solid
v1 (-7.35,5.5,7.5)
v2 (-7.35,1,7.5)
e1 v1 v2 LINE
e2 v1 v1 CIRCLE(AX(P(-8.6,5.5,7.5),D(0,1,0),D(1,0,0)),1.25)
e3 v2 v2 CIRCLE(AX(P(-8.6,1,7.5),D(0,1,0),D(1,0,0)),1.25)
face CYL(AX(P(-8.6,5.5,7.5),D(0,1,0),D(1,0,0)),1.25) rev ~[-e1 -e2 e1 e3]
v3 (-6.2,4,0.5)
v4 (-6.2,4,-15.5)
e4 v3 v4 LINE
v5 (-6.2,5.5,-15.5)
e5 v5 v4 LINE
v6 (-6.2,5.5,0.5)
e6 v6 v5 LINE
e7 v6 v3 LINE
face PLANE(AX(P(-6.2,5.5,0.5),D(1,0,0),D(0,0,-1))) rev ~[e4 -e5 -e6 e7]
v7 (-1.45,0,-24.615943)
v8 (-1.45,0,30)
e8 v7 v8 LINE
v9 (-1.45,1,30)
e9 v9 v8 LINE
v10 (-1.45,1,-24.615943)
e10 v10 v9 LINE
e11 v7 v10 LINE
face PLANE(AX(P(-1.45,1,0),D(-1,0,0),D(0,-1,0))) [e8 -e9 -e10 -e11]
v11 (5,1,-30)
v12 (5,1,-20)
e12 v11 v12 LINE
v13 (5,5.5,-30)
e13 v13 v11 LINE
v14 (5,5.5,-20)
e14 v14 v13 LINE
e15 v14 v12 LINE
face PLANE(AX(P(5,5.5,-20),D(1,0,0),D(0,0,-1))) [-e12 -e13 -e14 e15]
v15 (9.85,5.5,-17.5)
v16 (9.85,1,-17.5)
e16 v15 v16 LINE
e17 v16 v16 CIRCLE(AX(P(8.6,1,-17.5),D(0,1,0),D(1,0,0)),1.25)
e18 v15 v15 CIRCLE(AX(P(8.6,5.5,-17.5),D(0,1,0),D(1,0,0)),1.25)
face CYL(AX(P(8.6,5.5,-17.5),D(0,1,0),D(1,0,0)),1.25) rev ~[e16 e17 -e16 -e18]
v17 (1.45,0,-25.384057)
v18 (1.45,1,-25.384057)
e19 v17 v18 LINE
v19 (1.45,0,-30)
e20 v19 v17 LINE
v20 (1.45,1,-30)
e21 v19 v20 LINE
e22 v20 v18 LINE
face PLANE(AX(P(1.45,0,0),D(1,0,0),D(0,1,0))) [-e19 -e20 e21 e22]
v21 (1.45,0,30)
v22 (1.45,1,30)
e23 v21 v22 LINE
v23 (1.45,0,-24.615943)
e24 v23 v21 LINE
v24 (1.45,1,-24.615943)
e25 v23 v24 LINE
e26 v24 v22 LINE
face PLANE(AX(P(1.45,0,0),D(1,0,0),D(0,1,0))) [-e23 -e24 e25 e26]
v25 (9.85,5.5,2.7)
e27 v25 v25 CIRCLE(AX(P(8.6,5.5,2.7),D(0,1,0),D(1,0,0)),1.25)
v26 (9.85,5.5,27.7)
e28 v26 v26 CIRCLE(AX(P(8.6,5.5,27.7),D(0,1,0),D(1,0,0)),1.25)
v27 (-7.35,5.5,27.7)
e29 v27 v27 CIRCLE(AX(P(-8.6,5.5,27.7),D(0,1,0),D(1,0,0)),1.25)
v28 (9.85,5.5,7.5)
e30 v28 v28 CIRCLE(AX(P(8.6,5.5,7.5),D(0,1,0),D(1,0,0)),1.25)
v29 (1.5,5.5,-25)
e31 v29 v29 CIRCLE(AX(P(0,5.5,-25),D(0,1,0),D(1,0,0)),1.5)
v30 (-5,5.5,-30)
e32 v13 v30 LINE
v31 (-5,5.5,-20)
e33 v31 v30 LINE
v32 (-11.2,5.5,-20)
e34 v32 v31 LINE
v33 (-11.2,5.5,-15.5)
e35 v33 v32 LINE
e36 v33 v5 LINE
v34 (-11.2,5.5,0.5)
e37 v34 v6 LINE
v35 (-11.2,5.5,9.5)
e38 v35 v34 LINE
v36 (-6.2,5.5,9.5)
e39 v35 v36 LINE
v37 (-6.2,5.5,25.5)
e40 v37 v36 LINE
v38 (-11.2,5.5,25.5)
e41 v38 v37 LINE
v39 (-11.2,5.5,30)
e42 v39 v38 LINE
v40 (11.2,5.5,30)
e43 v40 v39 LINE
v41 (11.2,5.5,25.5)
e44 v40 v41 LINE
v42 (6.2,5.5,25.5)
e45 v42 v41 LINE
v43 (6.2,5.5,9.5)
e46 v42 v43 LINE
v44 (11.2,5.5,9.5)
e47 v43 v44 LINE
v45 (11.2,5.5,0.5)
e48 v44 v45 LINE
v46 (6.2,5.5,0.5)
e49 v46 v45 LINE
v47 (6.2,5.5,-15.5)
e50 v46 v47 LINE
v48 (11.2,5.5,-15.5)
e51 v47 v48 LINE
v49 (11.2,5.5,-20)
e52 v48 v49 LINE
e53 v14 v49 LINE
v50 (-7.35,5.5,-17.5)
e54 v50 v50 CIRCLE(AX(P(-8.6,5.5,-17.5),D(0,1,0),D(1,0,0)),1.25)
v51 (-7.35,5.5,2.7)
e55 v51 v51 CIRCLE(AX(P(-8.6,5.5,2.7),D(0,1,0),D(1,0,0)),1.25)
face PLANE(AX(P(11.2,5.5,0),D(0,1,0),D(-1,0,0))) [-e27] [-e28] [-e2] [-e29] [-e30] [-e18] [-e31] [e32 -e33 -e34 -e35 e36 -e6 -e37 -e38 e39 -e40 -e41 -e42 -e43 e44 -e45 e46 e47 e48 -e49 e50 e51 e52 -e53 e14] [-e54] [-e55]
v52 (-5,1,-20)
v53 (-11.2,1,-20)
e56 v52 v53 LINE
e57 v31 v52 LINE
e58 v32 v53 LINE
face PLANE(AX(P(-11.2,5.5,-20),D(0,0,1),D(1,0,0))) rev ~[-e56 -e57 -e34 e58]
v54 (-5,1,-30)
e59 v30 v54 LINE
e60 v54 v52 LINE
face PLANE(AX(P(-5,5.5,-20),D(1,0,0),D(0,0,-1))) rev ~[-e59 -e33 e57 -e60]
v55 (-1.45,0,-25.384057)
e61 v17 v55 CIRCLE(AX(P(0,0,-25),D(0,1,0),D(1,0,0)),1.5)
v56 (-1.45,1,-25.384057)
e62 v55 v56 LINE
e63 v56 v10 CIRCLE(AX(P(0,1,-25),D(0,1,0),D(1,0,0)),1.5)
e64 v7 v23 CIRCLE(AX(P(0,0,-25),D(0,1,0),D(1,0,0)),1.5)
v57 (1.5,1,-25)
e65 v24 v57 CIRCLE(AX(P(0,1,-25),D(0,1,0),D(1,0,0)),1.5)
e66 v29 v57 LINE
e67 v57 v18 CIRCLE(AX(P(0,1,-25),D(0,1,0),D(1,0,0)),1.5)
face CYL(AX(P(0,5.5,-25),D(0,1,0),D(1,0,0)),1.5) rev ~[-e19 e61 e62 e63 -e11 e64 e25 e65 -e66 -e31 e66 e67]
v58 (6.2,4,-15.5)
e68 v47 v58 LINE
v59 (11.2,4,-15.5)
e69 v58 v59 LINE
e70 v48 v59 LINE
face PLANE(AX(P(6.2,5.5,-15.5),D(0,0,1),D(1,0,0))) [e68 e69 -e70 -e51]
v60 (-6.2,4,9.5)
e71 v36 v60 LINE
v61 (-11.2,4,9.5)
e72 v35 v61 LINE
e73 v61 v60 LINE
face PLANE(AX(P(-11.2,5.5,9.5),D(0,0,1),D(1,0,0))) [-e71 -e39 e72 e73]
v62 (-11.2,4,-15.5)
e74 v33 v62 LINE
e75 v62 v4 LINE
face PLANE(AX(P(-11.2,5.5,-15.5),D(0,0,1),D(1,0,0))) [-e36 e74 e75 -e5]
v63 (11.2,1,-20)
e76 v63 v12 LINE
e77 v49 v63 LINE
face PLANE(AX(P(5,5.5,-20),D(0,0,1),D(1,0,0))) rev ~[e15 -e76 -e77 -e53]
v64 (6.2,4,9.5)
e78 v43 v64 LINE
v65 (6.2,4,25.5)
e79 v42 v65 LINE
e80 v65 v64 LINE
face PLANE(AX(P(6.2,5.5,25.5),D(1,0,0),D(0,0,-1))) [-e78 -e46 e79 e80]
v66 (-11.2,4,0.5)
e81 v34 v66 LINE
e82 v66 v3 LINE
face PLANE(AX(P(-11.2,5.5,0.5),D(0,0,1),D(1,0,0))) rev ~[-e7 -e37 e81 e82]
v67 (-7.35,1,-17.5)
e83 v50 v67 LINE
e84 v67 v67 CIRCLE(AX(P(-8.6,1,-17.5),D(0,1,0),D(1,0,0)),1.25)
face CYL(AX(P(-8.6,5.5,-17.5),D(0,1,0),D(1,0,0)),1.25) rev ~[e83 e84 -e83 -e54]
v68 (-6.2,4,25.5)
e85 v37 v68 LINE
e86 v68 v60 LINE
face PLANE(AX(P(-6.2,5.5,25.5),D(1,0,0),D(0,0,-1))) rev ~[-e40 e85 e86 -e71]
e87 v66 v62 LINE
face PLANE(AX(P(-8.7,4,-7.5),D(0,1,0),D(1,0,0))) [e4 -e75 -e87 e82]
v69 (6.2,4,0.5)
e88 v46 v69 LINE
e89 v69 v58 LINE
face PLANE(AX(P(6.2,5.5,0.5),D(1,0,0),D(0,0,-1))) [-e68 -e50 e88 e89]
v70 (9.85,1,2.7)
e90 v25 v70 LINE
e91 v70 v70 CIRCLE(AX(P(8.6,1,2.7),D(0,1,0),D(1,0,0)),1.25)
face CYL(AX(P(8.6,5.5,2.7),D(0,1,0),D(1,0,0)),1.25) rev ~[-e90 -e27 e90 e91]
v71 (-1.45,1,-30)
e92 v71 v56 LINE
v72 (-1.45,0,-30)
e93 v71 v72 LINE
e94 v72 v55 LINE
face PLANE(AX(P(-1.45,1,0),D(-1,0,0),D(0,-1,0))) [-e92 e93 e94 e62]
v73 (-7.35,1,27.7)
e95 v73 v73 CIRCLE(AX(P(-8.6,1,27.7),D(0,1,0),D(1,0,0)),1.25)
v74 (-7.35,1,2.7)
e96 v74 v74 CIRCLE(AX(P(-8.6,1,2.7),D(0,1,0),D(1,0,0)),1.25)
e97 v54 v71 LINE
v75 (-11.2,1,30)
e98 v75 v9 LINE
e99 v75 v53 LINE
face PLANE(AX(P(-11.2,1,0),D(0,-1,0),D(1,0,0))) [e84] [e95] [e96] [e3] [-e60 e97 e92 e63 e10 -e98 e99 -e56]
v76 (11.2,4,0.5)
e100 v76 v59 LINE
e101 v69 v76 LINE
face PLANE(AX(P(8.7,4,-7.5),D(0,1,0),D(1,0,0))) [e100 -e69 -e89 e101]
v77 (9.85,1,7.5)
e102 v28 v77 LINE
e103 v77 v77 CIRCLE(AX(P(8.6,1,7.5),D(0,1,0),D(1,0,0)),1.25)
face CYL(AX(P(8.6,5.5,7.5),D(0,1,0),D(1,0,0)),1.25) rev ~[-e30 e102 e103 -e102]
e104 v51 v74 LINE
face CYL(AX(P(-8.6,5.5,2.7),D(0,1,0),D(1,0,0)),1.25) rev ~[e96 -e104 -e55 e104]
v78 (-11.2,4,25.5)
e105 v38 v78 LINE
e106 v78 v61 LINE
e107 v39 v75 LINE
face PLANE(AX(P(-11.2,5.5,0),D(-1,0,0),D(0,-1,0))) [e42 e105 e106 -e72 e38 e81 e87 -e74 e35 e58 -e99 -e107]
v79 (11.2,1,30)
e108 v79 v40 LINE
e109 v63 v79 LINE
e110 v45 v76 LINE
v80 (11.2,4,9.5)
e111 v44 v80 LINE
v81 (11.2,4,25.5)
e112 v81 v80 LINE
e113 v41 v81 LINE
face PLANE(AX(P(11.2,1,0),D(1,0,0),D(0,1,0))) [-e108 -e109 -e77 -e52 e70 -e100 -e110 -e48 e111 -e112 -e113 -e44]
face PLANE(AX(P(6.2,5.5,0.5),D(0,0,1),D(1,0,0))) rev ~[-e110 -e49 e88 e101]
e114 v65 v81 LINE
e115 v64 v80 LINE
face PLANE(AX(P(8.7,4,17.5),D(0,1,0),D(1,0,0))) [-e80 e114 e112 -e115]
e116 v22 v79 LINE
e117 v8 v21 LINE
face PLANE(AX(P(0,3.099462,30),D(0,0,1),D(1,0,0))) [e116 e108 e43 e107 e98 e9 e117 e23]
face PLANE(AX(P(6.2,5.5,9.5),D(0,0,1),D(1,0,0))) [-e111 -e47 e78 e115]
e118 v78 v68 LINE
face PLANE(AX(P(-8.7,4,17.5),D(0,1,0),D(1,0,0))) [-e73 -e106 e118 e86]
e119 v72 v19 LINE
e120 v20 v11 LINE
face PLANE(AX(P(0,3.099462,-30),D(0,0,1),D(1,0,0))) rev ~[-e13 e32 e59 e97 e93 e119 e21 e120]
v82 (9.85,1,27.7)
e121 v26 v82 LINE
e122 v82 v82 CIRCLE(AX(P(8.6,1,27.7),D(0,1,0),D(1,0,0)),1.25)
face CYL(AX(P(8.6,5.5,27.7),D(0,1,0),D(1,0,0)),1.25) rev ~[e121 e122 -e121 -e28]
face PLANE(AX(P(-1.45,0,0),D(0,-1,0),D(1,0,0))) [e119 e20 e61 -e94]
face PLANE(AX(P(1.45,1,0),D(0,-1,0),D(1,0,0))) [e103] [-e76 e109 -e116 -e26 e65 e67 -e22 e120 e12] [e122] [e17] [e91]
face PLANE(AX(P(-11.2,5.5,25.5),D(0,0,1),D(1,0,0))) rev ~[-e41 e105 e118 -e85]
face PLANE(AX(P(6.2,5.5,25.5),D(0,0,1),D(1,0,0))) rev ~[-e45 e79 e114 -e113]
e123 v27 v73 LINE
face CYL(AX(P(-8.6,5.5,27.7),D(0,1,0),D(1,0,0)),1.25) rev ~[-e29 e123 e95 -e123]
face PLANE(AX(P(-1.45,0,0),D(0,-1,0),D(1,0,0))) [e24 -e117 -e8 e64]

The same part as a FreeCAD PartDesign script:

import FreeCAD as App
import Part
import Sketcher
from FreeCAD import Vector


def add_polygon(sketch, points):
    """Adds a closed chain of lines whose ends are joined by coincident constraints."""
    first, n = sketch.GeometryCount, len(points)
    for a, b in zip(points, points[1:] + points[:1]):
        sketch.addGeometry(Part.LineSegment(App.Vector(*a, 0), App.Vector(*b, 0)), False)
    for i in range(n):
        sketch.addConstraint(Sketcher.Constraint("Coincident", first + i, 2, first + (i + 1) % n, 1))

doc = App.newDocument("Part")
body = doc.addObject("PartDesign::Body", "Body")

# Sketch on XY plane
sketch1 = body.newObject("Sketcher::SketchObject", "Sketch")
sketch1.AttachmentSupport = (doc.getObject("XY_Plane"), [""])
sketch1.MapMode = "FlatFace"
add_polygon(sketch1, [(-11.2, 1), (-1.4, 1), (-1.4, 0), (1.4, 0), (1.4, 1), (11.2, 1), (11.2, 5.5), (-11.2, 5.5)])  # lines 0-7
sketch1.addConstraint(Sketcher.Constraint("Horizontal", 0))
sketch1.addConstraint(Sketcher.Constraint("Vertical", 1))
sketch1.addConstraint(Sketcher.Constraint("Horizontal", 2))
sketch1.addConstraint(Sketcher.Constraint("Vertical", 3))
sketch1.addConstraint(Sketcher.Constraint("Horizontal", 4))
sketch1.addConstraint(Sketcher.Constraint("Vertical", 5))
sketch1.addConstraint(Sketcher.Constraint("Horizontal", 6))
sketch1.addConstraint(Sketcher.Constraint("Vertical", 7))
sketch1.addConstraint(Sketcher.Constraint("Symmetric", 1, 2, 2, 2, -1, 1))
sketch1.addConstraint(Sketcher.Constraint("Symmetric", 4, 2, 7, 2, -2))
sketch1.addConstraint(Sketcher.Constraint("DistanceY", 1, 2, 1, 1, 1.0))
sketch1.addConstraint(Sketcher.Constraint("DistanceX", 2, 1, 2, 2, 2.9))
sketch1.addConstraint(Sketcher.Constraint("DistanceX", 6, 2, 6, 1, 22.4))
sketch1.addConstraint(Sketcher.Constraint("DistanceY", 5, 1, 5, 2, 4.5))
pad1 = body.newObject("PartDesign::Pad", "Pad")
pad1.Profile = sketch1
pad1.Length = 60
pad1.Midplane = True

# Sketch on XZ plane
sketch2 = body.newObject("Sketcher::SketchObject", "Sketch001")
sketch2.AttachmentSupport = (doc.getObject("XZ_Plane"), [""])
sketch2.MapMode = "FlatFace"
sketch2.AttachmentOffset = App.Placement(Vector(0, 0, -5.5), App.Rotation())
sketch2.addGeometry(Part.Circle(Vector(0, -25, 0), Vector(0, 0, 1), 1.5), False)  # 0
add_polygon(sketch2, [(-11.2, -30), (-11.2, -20), (-5, -20), (-5, -30)])  # lines 1-4
add_polygon(sketch2, [(5, -30), (5, -20), (11.2, -20), (11.2, -30)])  # lines 5-8
sketch2.addConstraint(Sketcher.Constraint("Vertical", 1))
sketch2.addConstraint(Sketcher.Constraint("Horizontal", 2))
sketch2.addConstraint(Sketcher.Constraint("Vertical", 3))
sketch2.addConstraint(Sketcher.Constraint("Horizontal", 4))
sketch2.addConstraint(Sketcher.Constraint("Vertical", 5))
sketch2.addConstraint(Sketcher.Constraint("Horizontal", 6))
sketch2.addConstraint(Sketcher.Constraint("Vertical", 7))
sketch2.addConstraint(Sketcher.Constraint("Horizontal", 8))
sketch2.addConstraint(Sketcher.Constraint("Symmetric", 2, 2, 5, 2, -2))
sketch2.addConstraint(Sketcher.Constraint("Symmetric", 4, 2, 7, 2, -2))
sketch2.addConstraint(Sketcher.Constraint("PointOnObject", 0, 3, -2))
sketch2.addConstraint(Sketcher.Constraint("Diameter", 0, 3.0))
sketch2.addConstraint(Sketcher.Constraint("DistanceY", 1, 1, 1, 2, 10.0))
sketch2.addConstraint(Sketcher.Constraint("DistanceX", 2, 1, 2, 2, 6.2))
sketch2.addConstraint(Sketcher.Constraint("DistanceY", 0, 3, -1, 1, 25.0))
sketch2.addConstraint(Sketcher.Constraint("DistanceY", 1, 2, -1, 1, 20.0))
sketch2.addConstraint(Sketcher.Constraint("DistanceX", 2, 2, -1, 1, 5.0))
pocket1 = body.newObject("PartDesign::Pocket", "Pocket")
pocket1.Profile = sketch2
pocket1.Type = "ThroughAll"
pocket1.Reversed = True

# Sketch on XZ plane
sketch3 = body.newObject("Sketcher::SketchObject", "Sketch002")
sketch3.AttachmentSupport = (doc.getObject("XZ_Plane"), [""])
sketch3.MapMode = "FlatFace"
sketch3.AttachmentOffset = App.Placement(Vector(0, 0, -5.5), App.Rotation())
sketch3.addGeometry(Part.Circle(Vector(-8.6, -17.5, 0), Vector(0, 0, 1), 1.2), False)
sketch3.addGeometry(Part.Circle(Vector(8.6, -17.5, 0), Vector(0, 0, 1), 1.2), False)
sketch3.addGeometry(Part.Circle(Vector(-8.6, 2.7, 0), Vector(0, 0, 1), 1.2), False)
sketch3.addGeometry(Part.Circle(Vector(8.6, 2.7, 0), Vector(0, 0, 1), 1.2), False)
sketch3.addConstraint(Sketcher.Constraint("Equal", 0, 1))
sketch3.addConstraint(Sketcher.Constraint("Equal", 1, 2))
sketch3.addConstraint(Sketcher.Constraint("Equal", 2, 3))
sketch3.addConstraint(Sketcher.Constraint("Symmetric", 0, 3, 1, 3, -2))
sketch3.addConstraint(Sketcher.Constraint("Symmetric", 2, 3, 3, 3, -2))
sketch3.addConstraint(Sketcher.Constraint("Vertical", 0, 3, 2, 3))
sketch3.addConstraint(Sketcher.Constraint("Diameter", 0, 2.5))
sketch3.addConstraint(Sketcher.Constraint("DistanceX", 0, 3, -1, 1, 8.6))
sketch3.addConstraint(Sketcher.Constraint("DistanceY", 0, 3, -1, 1, 17.5))
sketch3.addConstraint(Sketcher.Constraint("DistanceY", -1, 1, 2, 3, 2.7))
pocket2 = body.newObject("PartDesign::Pocket", "Pocket001")
pocket2.Profile = sketch3
pocket2.Type = "ThroughAll"
pocket2.Reversed = True

# Sketch on XZ plane
sketch4 = body.newObject("Sketcher::SketchObject", "Sketch003")
sketch4.AttachmentSupport = (doc.getObject("XZ_Plane"), [""])
sketch4.MapMode = "FlatFace"
sketch4.AttachmentOffset = App.Placement(Vector(0, 0, -5.5), App.Rotation())
add_polygon(sketch4, [(-11.2, -15.5), (-11.2, 0.5), (-6.2, 0.5), (-6.2, -15.5)])  # lines 0-3
add_polygon(sketch4, [(6.2, -15.5), (6.2, 0.5), (11.2, 0.5), (11.2, -15.5)])  # lines 4-7
sketch4.addConstraint(Sketcher.Constraint("Vertical", 0))
sketch4.addConstraint(Sketcher.Constraint("Horizontal", 1))
sketch4.addConstraint(Sketcher.Constraint("Vertical", 2))
sketch4.addConstraint(Sketcher.Constraint("Horizontal", 3))
sketch4.addConstraint(Sketcher.Constraint("Vertical", 4))
sketch4.addConstraint(Sketcher.Constraint("Horizontal", 5))
sketch4.addConstraint(Sketcher.Constraint("Vertical", 6))
sketch4.addConstraint(Sketcher.Constraint("Horizontal", 7))
sketch4.addConstraint(Sketcher.Constraint("Symmetric", 1, 2, 4, 2, -2))
sketch4.addConstraint(Sketcher.Constraint("Symmetric", 3, 2, 6, 2, -2))
sketch4.addConstraint(Sketcher.Constraint("DistanceX", 1, 1, 1, 2, 5.0))
sketch4.addConstraint(Sketcher.Constraint("DistanceY", 0, 1, 0, 2, 16.0))
sketch4.addConstraint(Sketcher.Constraint("DistanceX", 0, 2, -1, 1, 11.2))
sketch4.addConstraint(Sketcher.Constraint("DistanceY", -1, 1, 0, 2, 0.5))
pocket3 = body.newObject("PartDesign::Pocket", "Pocket002")
pocket3.Profile = sketch4
pocket3.Length = 1.5
pocket3.Reversed = True
doc.recompute()

linearpattern = body.newObject("PartDesign::LinearPattern", "LinearPattern")
linearpattern.Originals = [pocket2, pocket3]
linearpattern.Direction = (doc.getObject("Z_Axis"), [""])
linearpattern.Mode = "offset"
linearpattern.Offset = 25
linearpattern.Occurrences = 2
body.Tip = linearpattern

doc.recompute()
